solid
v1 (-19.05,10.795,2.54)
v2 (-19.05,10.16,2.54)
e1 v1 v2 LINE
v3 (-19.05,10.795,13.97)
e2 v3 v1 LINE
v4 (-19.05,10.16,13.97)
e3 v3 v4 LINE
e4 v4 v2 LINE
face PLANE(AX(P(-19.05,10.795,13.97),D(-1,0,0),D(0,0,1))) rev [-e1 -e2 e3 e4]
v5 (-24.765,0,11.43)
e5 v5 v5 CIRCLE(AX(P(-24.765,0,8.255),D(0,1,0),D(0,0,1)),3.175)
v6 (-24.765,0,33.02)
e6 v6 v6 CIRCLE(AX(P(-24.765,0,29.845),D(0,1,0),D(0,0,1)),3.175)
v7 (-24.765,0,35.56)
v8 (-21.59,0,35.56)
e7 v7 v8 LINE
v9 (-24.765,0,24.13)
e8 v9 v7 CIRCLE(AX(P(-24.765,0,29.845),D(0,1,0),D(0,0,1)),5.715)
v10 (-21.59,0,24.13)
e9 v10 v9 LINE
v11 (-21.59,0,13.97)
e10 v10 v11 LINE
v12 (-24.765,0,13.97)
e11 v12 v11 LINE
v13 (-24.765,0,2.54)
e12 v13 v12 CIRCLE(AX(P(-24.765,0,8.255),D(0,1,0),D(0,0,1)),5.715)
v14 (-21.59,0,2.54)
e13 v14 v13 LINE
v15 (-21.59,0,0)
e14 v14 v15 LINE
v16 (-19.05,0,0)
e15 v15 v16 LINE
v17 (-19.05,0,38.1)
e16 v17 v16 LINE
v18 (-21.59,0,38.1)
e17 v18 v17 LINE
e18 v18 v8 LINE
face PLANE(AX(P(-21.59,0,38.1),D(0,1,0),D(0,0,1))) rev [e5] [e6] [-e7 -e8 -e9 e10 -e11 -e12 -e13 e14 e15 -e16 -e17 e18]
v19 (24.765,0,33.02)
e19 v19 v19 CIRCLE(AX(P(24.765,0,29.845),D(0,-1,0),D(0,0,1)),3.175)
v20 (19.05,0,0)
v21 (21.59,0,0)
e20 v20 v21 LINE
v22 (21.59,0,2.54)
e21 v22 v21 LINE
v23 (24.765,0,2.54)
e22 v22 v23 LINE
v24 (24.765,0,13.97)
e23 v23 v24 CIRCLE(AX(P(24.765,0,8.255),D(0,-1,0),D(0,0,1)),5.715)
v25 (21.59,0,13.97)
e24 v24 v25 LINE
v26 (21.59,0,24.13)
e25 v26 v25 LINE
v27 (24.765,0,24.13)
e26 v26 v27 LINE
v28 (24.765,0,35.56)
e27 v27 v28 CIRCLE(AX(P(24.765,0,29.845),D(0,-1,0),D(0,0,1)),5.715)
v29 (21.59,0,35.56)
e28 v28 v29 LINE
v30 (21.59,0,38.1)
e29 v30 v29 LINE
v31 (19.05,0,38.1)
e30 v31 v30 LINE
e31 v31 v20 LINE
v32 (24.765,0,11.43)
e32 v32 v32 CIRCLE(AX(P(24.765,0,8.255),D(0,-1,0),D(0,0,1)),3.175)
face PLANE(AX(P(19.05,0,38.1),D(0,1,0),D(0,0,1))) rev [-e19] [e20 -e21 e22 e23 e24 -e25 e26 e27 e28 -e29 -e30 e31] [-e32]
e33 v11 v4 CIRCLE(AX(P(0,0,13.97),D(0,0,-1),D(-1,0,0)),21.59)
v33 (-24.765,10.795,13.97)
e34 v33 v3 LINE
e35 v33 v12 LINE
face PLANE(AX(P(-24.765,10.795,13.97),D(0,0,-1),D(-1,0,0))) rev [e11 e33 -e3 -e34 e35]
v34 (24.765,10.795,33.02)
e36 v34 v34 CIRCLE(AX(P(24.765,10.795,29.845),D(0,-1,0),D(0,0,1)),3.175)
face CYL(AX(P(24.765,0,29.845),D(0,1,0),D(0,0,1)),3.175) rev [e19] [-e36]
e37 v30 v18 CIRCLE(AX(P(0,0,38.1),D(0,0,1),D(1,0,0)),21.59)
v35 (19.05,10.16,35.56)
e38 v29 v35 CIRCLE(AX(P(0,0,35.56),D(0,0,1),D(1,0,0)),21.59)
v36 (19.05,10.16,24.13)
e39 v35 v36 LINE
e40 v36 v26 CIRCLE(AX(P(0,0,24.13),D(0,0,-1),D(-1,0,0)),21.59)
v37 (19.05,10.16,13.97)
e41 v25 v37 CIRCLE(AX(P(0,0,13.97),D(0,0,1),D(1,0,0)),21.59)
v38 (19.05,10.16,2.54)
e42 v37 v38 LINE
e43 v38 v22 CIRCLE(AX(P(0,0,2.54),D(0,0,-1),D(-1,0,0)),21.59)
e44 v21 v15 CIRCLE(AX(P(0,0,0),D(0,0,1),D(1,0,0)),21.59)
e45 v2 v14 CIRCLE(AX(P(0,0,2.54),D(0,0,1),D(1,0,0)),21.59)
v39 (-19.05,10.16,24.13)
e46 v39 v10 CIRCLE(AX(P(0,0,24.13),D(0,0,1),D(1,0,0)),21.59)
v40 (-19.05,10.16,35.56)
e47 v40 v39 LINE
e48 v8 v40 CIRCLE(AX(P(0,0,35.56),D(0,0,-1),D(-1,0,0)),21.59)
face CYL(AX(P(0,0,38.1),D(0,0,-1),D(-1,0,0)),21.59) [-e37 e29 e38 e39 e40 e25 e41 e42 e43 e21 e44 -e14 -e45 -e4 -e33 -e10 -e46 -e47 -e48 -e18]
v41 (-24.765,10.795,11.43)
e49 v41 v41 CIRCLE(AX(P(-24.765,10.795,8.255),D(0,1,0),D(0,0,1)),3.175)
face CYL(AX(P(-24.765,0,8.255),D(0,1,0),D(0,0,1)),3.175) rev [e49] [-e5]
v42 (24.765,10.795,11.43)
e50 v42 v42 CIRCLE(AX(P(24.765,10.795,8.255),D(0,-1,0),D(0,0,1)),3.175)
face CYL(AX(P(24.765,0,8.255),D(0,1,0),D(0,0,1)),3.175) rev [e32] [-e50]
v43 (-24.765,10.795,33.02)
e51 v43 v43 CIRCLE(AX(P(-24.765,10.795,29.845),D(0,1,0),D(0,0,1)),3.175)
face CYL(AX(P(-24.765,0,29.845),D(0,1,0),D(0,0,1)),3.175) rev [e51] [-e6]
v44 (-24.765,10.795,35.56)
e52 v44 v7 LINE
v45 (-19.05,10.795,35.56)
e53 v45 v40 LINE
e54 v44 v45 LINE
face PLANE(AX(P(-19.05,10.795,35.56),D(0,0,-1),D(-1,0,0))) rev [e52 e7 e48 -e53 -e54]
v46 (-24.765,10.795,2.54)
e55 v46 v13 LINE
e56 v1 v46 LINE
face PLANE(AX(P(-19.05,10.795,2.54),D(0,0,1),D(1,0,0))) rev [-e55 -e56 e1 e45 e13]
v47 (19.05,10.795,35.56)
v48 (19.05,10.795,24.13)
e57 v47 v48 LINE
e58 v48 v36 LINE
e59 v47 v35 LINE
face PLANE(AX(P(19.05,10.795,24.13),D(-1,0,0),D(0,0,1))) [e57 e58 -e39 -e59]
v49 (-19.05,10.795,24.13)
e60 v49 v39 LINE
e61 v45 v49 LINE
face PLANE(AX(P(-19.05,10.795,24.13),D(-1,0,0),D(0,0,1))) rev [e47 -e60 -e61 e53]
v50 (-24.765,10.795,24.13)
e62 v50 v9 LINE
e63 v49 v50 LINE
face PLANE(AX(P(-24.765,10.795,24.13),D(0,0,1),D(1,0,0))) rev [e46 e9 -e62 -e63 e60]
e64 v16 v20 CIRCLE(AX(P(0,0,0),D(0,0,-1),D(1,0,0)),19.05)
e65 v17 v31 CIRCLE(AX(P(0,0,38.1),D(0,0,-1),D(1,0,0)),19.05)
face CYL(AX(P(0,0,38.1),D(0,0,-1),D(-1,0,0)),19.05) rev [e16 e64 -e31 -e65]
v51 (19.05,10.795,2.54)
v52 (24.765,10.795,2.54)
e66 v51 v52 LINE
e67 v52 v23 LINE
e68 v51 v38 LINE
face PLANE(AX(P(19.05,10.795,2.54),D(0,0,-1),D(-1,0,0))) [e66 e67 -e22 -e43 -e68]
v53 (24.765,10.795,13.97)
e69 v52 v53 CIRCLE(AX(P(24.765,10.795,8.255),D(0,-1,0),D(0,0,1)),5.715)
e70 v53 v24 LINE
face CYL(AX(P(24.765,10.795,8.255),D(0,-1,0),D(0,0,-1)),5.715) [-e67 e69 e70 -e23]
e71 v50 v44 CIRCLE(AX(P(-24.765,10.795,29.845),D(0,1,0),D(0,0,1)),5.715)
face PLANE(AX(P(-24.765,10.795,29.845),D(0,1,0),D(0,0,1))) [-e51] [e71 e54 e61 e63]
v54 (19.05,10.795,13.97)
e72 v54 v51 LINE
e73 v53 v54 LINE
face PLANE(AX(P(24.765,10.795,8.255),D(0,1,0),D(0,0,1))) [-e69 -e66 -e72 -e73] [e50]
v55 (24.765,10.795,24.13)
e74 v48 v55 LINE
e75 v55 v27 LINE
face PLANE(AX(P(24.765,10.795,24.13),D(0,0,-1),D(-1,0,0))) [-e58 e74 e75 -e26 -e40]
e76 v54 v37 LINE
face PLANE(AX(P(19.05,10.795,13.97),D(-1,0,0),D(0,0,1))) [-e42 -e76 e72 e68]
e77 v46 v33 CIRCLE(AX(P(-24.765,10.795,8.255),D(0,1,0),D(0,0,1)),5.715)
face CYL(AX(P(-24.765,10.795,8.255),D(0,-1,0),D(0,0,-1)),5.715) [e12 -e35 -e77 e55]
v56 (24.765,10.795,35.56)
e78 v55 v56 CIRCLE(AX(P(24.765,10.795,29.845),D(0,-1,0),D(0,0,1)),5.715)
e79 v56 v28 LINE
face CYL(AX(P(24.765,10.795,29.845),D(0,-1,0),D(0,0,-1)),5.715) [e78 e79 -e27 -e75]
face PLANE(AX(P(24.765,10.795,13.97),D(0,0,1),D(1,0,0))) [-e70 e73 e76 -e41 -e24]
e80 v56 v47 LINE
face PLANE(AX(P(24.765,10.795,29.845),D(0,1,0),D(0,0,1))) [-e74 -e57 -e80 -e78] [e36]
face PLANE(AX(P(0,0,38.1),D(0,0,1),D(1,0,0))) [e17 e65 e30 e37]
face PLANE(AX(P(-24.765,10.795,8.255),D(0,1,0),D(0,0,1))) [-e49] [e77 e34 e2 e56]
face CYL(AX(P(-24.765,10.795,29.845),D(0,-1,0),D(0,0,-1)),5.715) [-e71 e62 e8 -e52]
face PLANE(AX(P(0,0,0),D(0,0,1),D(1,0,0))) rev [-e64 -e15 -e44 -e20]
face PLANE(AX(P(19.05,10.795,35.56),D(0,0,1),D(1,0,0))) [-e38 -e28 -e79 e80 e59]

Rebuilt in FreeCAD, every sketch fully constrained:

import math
import FreeCAD as App
import Part
import Sketcher
Q = App.Units.Quantity

doc = App.newDocument("Part")
body = doc.addObject("PartDesign::Body", "Body")

# Sketch on XY plane
sketch1 = body.newObject("Sketcher::SketchObject", "Sketch")
sketch1.AttachmentSupport = (doc.getObject("XY_Plane"), [""])
sketch1.MapMode = "FlatFace"
sketch1.addGeometry([
    Part.LineSegment(App.Vector(-21.6, 0, 0), App.Vector(-19.1, 0, 0)),
    Part.ArcOfCircle(Part.Circle(App.Vector(0, 0, 0), App.Vector(0, 0, 1), 19.1), math.radians(0), math.radians(180)),
    Part.LineSegment(App.Vector(19.1, 0, 0), App.Vector(21.6, 0, 0)),
    Part.ArcOfCircle(Part.Circle(App.Vector(0, 0, 0), App.Vector(0, 0, 1), 21.6), math.radians(0), math.radians(180)),
], False)
sketch1.addConstraint([
    Sketcher.Constraint("Coincident", 0, 2, 1, 2),
    Sketcher.Constraint("Coincident", 1, 1, 2, 1),
    Sketcher.Constraint("Coincident", 2, 2, 3, 1),
    Sketcher.Constraint("Coincident", 3, 2, 0, 1),
    Sketcher.Constraint("Horizontal", 0),
    Sketcher.Constraint("Horizontal", 2),
    Sketcher.Constraint("Coincident", 1, 3, -1, 1),
    Sketcher.Constraint("Coincident", 3, 3, -1, 1),
    Sketcher.Constraint("PointOnObject", 0, 2, -1),
    Sketcher.Constraint("PointOnObject", 1, 1, -1),
    Sketcher.Constraint("Radius", 1, Q("0.75 in")),
    Sketcher.Constraint("Radius", 3, Q("0.85 in")),
])
pad1 = body.newObject("PartDesign::Pad", "Pad")
pad1.Profile = sketch1
pad1.Length = Q("1.5 in")

# Sketch on XZ plane
sketch2 = body.newObject("Sketcher::SketchObject", "Sketch001")
sketch2.AttachmentSupport = (doc.getObject("XZ_Plane"), [""])
sketch2.MapMode = "FlatFace"
sketch2.addGeometry([
    Part.Circle(App.Vector(-25, 8, 0), App.Vector(0, 0, 1), 6),
    Part.Circle(App.Vector(-25, 30, 0), App.Vector(0, 0, 1), 6),
], False)
sketch2.addConstraint([
    Sketcher.Constraint("Equal", 0, 1),
    Sketcher.Constraint("Vertical", 0, 3, 1, 3),
    Sketcher.Constraint("Diameter", 0, Q("0.45 in")),
    Sketcher.Constraint("DistanceY", 0, 3, 1, 3, Q("0.85 in")),
    Sketcher.Constraint("DistanceX", 0, 3, -1, 1, Q("0.975 in")),
    Sketcher.Constraint("DistanceY", -1, 1, 0, 3, Q("0.325 in")),
])
pad2 = body.newObject("PartDesign::Pad", "Pad001")
pad2.Profile = sketch2
pad2.Length = Q("0.425 in")
pad2.Reversed = True

# Sketch on XZ plane
sketch3 = body.newObject("Sketcher::SketchObject", "Sketch002")
sketch3.AttachmentSupport = (doc.getObject("XZ_Plane"), [""])
sketch3.MapMode = "FlatFace"
sketch3.addGeometry([
    Part.LineSegment(App.Vector(-25, 24, 0), App.Vector(-25, 36, 0)),  # 0
    Part.LineSegment(App.Vector(-25, 36, 0), App.Vector(-19, 36, 0)),  # 1
    Part.LineSegment(App.Vector(-19, 36, 0), App.Vector(-19, 24, 0)),  # 2
    Part.LineSegment(App.Vector(-19, 24, 0), App.Vector(-25, 24, 0)),  # 3
    Part.LineSegment(App.Vector(-25, 3, 0), App.Vector(-25, 14, 0)),  # 4
    Part.LineSegment(App.Vector(-25, 14, 0), App.Vector(-19, 14, 0)),  # 5
    Part.LineSegment(App.Vector(-19, 14, 0), App.Vector(-19, 3, 0)),  # 6
    Part.LineSegment(App.Vector(-19, 3, 0), App.Vector(-25, 3, 0)),  # 7
], False)
sketch3.addConstraint([
    Sketcher.Constraint("Coincident", 0, 2, 1, 1),
    Sketcher.Constraint("Coincident", 1, 2, 2, 1),
    Sketcher.Constraint("Coincident", 2, 2, 3, 1),
    Sketcher.Constraint("Coincident", 3, 2, 0, 1),
    Sketcher.Constraint("Coincident", 4, 2, 5, 1),
    Sketcher.Constraint("Coincident", 5, 2, 6, 1),
    Sketcher.Constraint("Coincident", 6, 2, 7, 1),
    Sketcher.Constraint("Coincident", 7, 2, 4, 1),
    Sketcher.Constraint("Vertical", 0),
    Sketcher.Constraint("Horizontal", 1),
    Sketcher.Constraint("Vertical", 2),
    Sketcher.Constraint("Horizontal", 3),
    Sketcher.Constraint("Vertical", 4),
    Sketcher.Constraint("Horizontal", 5),
    Sketcher.Constraint("Vertical", 6),
    Sketcher.Constraint("Horizontal", 7),
    Sketcher.Constraint("Vertical", 3, 2, 4, 2),
    Sketcher.Constraint("Vertical", 2, 2, 5, 2),
    Sketcher.Constraint("Equal", 2, 4),
    Sketcher.Constraint("DistanceY", 0, 1, 0, 2, Q("0.45 in")),
    Sketcher.Constraint("DistanceY", -1, 1, 0, 2, Q("1.4 in")),
    Sketcher.Constraint("DistanceY", -1, 1, 6, 2, Q("0.1 in")),
    Sketcher.Constraint("DistanceX", 1, 1, 1, 2, Q("0.225 in")),
    Sketcher.Constraint("DistanceX", 1, 2, -1, 1, Q("0.75 in")),
])
pad3 = body.newObject("PartDesign::Pad", "Pad002")
pad3.Profile = sketch3
pad3.Length = Q("0.425 in")
pad3.Reversed = True

# Sketch on XZ plane
sketch4 = body.newObject("Sketcher::SketchObject", "Sketch003")
sketch4.AttachmentSupport = (doc.getObject("XZ_Plane"), [""])
sketch4.MapMode = "FlatFace"
sketch4.AttachmentOffset = App.Placement(App.Vector(0, 0, -0.425 * 25.4), App.Rotation())
sketch4.addGeometry([
    Part.Circle(App.Vector(-24.8, 29.8, 0), App.Vector(0, 0, 1), 3.2),
    Part.Circle(App.Vector(-24.8, 8.3, 0), App.Vector(0, 0, 1), 3.2),
], False)
sketch4.addConstraint([
    Sketcher.Constraint("Equal", 0, 1),
    Sketcher.Constraint("Vertical", 0, 3, 1, 3),
    Sketcher.Constraint("Diameter", 0, Q("0.25 in")),
    Sketcher.Constraint("DistanceY", 1, 3, 0, 3, Q("0.85 in")),
    Sketcher.Constraint("DistanceX", 0, 3, -1, 1, Q("0.975 in")),
    Sketcher.Constraint("DistanceY", -1, 1, 0, 3, Q("1.175 in")),
])
pocket1 = body.newObject("PartDesign::Pocket", "Pocket")
pocket1.Profile = sketch4
pocket1.Length = Q("0.425 in")
pocket1.Reversed = True
doc.recompute()

mirrored = body.newObject("PartDesign::Mirrored", "Mirrored")
mirrored.Originals = [pad2, pad3, pocket1]
mirrored.MirrorPlane = (doc.getObject("YZ_Plane"), [""])
body.Tip = mirrored

doc.recompute()
